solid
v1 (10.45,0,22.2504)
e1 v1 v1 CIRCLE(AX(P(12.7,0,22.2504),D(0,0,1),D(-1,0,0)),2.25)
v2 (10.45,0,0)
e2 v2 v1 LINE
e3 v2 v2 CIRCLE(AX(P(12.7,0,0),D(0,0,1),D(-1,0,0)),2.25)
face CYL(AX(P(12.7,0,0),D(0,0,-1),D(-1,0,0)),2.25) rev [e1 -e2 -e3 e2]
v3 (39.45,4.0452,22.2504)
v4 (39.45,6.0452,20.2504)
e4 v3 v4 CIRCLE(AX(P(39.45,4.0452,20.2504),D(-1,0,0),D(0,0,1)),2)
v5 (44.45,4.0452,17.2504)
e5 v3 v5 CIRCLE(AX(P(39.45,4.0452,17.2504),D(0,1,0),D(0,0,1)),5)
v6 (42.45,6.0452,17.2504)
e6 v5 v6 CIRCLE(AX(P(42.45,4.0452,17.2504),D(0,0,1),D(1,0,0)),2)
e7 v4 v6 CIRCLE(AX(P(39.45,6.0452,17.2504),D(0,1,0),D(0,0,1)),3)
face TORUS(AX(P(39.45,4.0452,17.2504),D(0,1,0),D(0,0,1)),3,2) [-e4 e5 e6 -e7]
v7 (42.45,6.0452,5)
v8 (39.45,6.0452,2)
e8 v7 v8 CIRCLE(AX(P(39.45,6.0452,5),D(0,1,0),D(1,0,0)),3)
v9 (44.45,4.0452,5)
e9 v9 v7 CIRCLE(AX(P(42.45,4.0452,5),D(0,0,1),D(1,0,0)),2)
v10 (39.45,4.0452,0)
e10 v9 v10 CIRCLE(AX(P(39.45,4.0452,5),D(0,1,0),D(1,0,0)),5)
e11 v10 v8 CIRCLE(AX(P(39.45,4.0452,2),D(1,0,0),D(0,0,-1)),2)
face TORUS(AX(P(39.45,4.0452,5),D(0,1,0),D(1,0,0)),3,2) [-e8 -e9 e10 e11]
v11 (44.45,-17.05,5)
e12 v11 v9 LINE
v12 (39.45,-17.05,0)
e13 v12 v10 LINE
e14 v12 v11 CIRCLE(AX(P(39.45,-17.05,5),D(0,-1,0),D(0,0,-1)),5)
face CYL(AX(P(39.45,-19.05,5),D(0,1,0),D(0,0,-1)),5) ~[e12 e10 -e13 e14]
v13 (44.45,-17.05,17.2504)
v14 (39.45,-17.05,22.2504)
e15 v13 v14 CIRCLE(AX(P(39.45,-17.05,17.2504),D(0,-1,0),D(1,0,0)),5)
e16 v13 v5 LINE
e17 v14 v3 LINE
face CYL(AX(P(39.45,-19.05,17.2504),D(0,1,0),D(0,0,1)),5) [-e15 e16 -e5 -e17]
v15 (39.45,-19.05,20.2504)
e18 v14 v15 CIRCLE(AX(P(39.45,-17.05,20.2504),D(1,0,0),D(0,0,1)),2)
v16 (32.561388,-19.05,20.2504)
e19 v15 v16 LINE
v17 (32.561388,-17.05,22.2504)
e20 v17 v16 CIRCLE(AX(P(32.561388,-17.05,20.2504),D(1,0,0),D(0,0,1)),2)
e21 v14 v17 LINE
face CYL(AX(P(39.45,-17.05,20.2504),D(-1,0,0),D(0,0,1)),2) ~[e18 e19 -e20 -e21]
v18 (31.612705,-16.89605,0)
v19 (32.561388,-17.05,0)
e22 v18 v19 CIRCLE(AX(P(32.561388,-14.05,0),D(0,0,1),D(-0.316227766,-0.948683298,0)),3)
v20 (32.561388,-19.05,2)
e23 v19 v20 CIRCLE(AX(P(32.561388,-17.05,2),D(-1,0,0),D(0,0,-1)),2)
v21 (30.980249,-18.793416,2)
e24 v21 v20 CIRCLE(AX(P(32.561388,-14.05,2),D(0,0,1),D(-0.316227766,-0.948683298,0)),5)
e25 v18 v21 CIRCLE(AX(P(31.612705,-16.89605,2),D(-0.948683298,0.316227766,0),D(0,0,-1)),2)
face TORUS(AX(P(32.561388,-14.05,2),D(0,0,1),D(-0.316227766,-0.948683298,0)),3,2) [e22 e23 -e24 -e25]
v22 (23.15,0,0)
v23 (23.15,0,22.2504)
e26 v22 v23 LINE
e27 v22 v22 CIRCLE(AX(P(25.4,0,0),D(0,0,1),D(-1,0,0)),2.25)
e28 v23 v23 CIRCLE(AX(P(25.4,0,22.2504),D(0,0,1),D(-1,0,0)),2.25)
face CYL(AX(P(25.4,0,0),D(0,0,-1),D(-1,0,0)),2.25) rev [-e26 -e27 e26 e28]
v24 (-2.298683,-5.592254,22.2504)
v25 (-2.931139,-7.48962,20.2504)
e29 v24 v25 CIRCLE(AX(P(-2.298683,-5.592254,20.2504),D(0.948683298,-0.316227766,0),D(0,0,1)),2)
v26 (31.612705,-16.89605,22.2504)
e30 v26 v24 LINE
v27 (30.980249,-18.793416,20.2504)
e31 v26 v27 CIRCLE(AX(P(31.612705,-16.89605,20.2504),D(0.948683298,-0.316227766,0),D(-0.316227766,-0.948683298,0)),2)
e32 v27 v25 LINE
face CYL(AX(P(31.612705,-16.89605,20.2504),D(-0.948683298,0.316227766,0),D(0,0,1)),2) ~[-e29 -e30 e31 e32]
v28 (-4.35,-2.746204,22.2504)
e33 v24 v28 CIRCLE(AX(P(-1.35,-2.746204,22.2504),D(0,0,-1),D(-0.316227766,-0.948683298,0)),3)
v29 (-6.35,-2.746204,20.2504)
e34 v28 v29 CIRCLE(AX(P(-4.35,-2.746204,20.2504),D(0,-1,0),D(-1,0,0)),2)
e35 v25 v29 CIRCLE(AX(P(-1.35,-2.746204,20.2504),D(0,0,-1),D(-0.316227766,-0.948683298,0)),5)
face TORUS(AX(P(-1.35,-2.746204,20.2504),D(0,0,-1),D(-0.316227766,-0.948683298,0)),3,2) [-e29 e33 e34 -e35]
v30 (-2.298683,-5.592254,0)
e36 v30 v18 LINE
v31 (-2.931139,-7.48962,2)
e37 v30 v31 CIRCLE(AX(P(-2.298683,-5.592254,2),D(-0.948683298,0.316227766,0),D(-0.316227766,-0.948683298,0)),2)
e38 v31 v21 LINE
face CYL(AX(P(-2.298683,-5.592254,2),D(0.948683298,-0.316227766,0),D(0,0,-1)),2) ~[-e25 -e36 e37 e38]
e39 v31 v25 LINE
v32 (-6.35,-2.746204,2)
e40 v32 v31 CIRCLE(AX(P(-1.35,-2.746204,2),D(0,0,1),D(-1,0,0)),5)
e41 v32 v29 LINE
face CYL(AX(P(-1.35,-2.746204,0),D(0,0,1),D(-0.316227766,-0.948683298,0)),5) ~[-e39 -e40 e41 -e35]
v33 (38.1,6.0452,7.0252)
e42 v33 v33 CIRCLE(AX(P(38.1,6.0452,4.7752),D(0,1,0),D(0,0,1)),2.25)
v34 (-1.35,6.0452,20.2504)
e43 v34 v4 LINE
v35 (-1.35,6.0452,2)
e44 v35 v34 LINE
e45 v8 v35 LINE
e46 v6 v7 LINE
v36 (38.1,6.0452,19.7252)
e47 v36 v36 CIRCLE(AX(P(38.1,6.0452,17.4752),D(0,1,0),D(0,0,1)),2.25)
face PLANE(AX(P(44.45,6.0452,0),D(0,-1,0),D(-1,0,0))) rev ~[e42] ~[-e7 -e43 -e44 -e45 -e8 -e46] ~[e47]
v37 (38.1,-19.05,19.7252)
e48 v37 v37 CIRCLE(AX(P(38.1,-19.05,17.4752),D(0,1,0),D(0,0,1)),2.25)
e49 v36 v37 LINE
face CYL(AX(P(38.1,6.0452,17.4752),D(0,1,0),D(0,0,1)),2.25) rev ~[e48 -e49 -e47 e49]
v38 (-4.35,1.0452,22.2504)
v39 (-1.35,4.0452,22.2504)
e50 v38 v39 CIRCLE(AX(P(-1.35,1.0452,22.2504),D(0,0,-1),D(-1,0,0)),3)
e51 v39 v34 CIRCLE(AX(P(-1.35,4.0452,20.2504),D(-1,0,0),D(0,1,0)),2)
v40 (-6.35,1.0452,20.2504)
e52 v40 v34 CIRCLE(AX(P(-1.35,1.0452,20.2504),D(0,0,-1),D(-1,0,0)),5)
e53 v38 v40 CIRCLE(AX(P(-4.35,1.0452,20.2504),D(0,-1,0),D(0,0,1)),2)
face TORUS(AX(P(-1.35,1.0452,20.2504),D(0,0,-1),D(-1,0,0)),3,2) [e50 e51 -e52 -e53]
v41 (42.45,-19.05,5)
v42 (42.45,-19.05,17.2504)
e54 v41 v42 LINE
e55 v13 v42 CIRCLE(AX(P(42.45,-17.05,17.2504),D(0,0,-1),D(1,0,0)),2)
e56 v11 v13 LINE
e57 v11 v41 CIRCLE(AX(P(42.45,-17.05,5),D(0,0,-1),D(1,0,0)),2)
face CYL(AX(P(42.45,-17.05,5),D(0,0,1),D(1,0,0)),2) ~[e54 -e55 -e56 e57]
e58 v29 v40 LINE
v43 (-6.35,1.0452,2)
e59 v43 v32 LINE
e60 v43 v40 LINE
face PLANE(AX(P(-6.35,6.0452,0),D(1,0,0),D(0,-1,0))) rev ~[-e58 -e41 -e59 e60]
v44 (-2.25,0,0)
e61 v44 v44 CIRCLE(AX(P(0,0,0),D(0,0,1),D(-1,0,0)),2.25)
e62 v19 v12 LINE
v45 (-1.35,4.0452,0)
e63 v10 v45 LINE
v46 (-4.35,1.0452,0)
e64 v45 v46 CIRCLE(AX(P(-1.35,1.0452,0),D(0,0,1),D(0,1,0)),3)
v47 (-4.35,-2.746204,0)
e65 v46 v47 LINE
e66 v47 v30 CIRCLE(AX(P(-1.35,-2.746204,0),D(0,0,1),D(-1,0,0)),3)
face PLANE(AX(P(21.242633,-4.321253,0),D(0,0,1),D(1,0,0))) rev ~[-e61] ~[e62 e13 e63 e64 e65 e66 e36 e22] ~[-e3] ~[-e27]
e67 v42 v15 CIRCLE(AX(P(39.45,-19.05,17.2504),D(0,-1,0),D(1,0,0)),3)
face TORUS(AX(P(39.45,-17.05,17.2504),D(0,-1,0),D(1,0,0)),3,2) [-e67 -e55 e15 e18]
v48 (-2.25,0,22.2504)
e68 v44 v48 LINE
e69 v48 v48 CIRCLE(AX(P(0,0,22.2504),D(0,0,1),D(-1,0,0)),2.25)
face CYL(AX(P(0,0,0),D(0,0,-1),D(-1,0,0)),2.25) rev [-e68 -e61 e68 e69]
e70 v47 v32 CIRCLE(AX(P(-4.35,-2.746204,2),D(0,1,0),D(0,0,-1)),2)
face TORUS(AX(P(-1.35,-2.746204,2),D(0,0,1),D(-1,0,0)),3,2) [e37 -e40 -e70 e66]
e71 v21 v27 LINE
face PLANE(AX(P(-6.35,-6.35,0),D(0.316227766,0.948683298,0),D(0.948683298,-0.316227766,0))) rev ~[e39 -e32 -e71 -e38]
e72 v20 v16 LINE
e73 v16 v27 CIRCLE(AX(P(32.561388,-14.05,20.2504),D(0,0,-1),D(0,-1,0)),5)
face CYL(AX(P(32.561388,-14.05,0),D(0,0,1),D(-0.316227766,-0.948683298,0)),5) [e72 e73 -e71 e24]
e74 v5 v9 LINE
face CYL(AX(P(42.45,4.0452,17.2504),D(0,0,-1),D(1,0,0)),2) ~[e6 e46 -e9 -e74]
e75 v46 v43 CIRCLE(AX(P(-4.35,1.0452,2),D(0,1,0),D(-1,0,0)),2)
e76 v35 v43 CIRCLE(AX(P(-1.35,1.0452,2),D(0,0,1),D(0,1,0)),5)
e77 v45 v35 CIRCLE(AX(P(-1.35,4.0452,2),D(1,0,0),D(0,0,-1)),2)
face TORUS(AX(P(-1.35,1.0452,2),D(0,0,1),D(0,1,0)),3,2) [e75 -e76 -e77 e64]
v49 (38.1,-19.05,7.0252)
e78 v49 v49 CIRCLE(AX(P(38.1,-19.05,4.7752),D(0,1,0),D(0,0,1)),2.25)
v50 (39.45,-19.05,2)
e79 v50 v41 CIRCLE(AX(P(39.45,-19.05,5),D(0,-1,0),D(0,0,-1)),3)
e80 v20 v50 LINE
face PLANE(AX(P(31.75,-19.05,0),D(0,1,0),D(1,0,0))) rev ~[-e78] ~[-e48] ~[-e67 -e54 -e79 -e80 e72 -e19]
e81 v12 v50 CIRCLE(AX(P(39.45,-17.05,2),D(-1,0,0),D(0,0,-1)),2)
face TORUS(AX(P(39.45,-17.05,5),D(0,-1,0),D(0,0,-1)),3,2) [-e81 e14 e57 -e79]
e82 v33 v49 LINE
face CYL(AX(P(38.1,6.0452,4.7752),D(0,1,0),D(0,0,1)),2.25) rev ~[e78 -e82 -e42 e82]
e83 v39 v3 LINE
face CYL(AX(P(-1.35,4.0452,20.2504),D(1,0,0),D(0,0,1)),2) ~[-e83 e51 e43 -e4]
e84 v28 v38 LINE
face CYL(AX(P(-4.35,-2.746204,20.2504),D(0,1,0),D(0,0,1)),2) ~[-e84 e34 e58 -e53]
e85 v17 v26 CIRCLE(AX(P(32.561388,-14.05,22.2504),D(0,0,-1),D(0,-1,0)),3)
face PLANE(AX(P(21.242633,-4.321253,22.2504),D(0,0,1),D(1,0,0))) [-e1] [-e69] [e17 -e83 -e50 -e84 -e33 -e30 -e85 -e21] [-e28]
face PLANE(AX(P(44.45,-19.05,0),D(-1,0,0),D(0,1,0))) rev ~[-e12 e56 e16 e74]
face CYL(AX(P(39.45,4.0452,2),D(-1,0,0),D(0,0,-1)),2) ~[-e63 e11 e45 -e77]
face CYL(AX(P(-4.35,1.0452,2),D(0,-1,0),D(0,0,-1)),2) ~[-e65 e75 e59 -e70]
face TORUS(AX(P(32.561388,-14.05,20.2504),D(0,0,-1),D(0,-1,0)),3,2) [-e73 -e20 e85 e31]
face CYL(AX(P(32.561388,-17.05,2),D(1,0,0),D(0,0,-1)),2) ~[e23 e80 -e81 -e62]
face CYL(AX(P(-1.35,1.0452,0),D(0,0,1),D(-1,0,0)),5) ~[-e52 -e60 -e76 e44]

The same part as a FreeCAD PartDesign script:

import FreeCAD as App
import Part
import Sketcher
Q = App.Units.Quantity


def edges_at(feature, points):
    """Names of the edges that pass closest to the given points."""
    edges = feature.Shape.Edges
    near = lambda p: min(range(len(edges)), key=lambda i: edges[i].distToShape(Part.Vertex(*p))[0])
    return sorted({f"Edge{near(p) + 1}" for p in points})

doc = App.newDocument("Part")
params = doc.addObject("Spreadsheet::Sheet", "Params")
for row, (alias, value) in enumerate([
    ("sketch1_width", "2 in"),
    ("sketch1_width2", "0.5 in"),
    ("sketch1_height", "0.988 in"),
    ("pad1_length", "0.876 in"),
    ("fillet_radius", "5 mm"),
    ("fillet2_radius", "2 mm"),
], start=1):
    params.set(f"A{row}", alias)
    params.set(f"B{row}", "=" + value)
    params.setAlias(f"B{row}", alias)

body = doc.addObject("PartDesign::Body", "Body")

sketch1 = body.newObject("Sketcher::SketchObject", "Sketch")
sketch1.AttachmentSupport = (doc.getObject("XY_Plane"), [""])
sketch1.MapMode = "FlatFace"
sketch1.addGeometry([
    Part.LineSegment(App.Vector(-6.3, -6.3, 0), App.Vector(31.8, -19.1, 0)),
    Part.LineSegment(App.Vector(31.8, -19.1, 0), App.Vector(44.5, -19.1, 0)),
    Part.LineSegment(App.Vector(44.5, -19.1, 0), App.Vector(44.5, 6, 0)),
    Part.LineSegment(App.Vector(44.5, 6, 0), App.Vector(-6.3, 6, 0)),
    Part.LineSegment(App.Vector(-6.3, 6, 0), App.Vector(-6.3, -6.3, 0)),
    Part.Circle(App.Vector(0, 0, 0), App.Vector(0, 0, 1), 2.2),
    Part.Circle(App.Vector(12.7, 0, 0), App.Vector(0, 0, 1), 2.2),
    Part.Circle(App.Vector(25.4, 0, 0), App.Vector(0, 0, 1), 2.2),
], False)
sketch1.addConstraint([
    Sketcher.Constraint("Coincident", 0, 2, 1, 1),
    Sketcher.Constraint("Coincident", 1, 2, 2, 1),
    Sketcher.Constraint("Coincident", 2, 2, 3, 1),
    Sketcher.Constraint("Coincident", 3, 2, 4, 1),
    Sketcher.Constraint("Coincident", 4, 2, 0, 1),
    Sketcher.Constraint("Horizontal", 1),
    Sketcher.Constraint("Vertical", 2),
    Sketcher.Constraint("Horizontal", 3),
    Sketcher.Constraint("Vertical", 4),
    Sketcher.Constraint("Coincident", 5, 3, -1, 1),
    Sketcher.Constraint("Equal", 5, 6),
    Sketcher.Constraint("Equal", 6, 7),
    Sketcher.Constraint("PointOnObject", 6, 3, -1),
    Sketcher.Constraint("PointOnObject", 7, 3, -1),
    Sketcher.Constraint("DistanceX", 3, 2, 3, 1, Q("2 in")),
    Sketcher.Constraint("DistanceX", 1, 1, 1, 2, Q("0.5 in")),
    Sketcher.Constraint("DistanceX", -1, 1, 7, 3, Q("1 in")),
    Sketcher.Constraint("DistanceX", -1, 1, 6, 3, Q("0.5 in")),
    Sketcher.Constraint("DistanceY", 0, 2, 4, 2, Q("0.5 in")),
    Sketcher.Constraint("Diameter", 5, Q("4.5 mm")),
    Sketcher.Constraint("DistanceY", 2, 1, 2, 2, Q("0.988 in")),
    Sketcher.Constraint("DistanceX", -1, 1, 0, 2, Q("1.25 in")),
    Sketcher.Constraint("DistanceY", 0, 2, -1, 1, Q("0.75 in")),
])
sketch1.setExpression("Constraints[14]", "Params.sketch1_width")
sketch1.setExpression("Constraints[15]", "Params.sketch1_width2")
sketch1.setExpression("Constraints[20]", "Params.sketch1_height")
pad1 = body.newObject("PartDesign::Pad", "Pad")
pad1.Profile = sketch1
pad1.setExpression("Length", "Params.pad1_length")

sketch2 = body.newObject("Sketcher::SketchObject", "Sketch001")
sketch2.AttachmentSupport = (doc.getObject("XZ_Plane"), [""])
sketch2.MapMode = "FlatFace"
sketch2.AttachmentOffset = App.Placement(App.Vector(0, 0, -0.238 * 25.4), App.Rotation())
sketch2.addGeometry(Part.Circle(App.Vector(38.1, 17.5, 0), App.Vector(0, 0, 1), 2.2), False)
sketch2.addConstraint([
    Sketcher.Constraint("DistanceX", -1, 1, 0, 3, Q("1.5 in")),
    Sketcher.Constraint("Diameter", 0, Q("4.5 mm")),
    Sketcher.Constraint("DistanceY", -1, 1, 0, 3, Q("0.688 in")),
])
pocket1 = body.newObject("PartDesign::Pocket", "Pocket")
pocket1.Profile = sketch2
pocket1.Type = "UpToFirst"
pocket1.Reversed = True

sketch3 = body.newObject("Sketcher::SketchObject", "Sketch002")
sketch3.AttachmentSupport = (doc.getObject("XZ_Plane"), [""])
sketch3.MapMode = "FlatFace"
sketch3.AttachmentOffset = App.Placement(App.Vector(0, 0, -0.238 * 25.4), App.Rotation())
sketch3.addGeometry(Part.Circle(App.Vector(38.1, 4.8, 0), App.Vector(0, 0, 1), 2.2), False)
sketch3.addConstraint([
    Sketcher.Constraint("DistanceX", -1, 1, 0, 3, Q("1.5 in")),
    Sketcher.Constraint("Diameter", 0, Q("4.5 mm")),
    Sketcher.Constraint("DistanceY", -1, 1, 0, 3, Q("0.188 in")),
])
pocket2 = body.newObject("PartDesign::Pocket", "Pocket001")
pocket2.Profile = sketch3
pocket2.Type = "UpToFirst"
pocket2.Reversed = True
doc.recompute()

fillet = body.newObject("PartDesign::Fillet", "Fillet")
fillet.Base = (pocket2, edges_at(pocket2, [
    (44.45, -6.502, 0),
    (44.45, -6.502, 22.25),
    (31.75, -19.05, 11.125),
    (-6.35, -6.35, 11.125),
    (-6.35, 6.045, 11.125),
]))
fillet.setExpression("Radius", "Params.fillet_radius")
doc.recompute()

fillet2 = body.newObject("PartDesign::Fillet", "Fillet001")
fillet2.Base = (fillet, edges_at(fillet, [
    (36.006, -19.05, 0),
    (44.45, -19.05, 11.125),
    (36.006, -19.05, 22.25),
    (42.986, -19.05, 20.786),
    (42.986, -19.05, 1.464),
    (14.025, -13.142, 0),
    (-6.35, -0.851, 0),
    (19.05, 6.045, 0),
    (-4.886, 4.581, 0),
    (-5.406, -5.67, 0),
    (31.76, -18.985, 0),
    (14.025, -13.142, 22.25),
    (19.05, 6.045, 22.25),
    (-6.35, -0.851, 22.25),
    (-4.886, 4.581, 22.25),
    (-5.406, -5.67, 22.25),
    (31.76, -18.985, 22.25),
    (44.45, 6.045, 11.125),
    (42.986, 6.045, 20.786),
    (42.986, 6.045, 1.464),
]))
fillet2.setExpression("Radius", "Params.fillet2_radius")

doc.recompute()
